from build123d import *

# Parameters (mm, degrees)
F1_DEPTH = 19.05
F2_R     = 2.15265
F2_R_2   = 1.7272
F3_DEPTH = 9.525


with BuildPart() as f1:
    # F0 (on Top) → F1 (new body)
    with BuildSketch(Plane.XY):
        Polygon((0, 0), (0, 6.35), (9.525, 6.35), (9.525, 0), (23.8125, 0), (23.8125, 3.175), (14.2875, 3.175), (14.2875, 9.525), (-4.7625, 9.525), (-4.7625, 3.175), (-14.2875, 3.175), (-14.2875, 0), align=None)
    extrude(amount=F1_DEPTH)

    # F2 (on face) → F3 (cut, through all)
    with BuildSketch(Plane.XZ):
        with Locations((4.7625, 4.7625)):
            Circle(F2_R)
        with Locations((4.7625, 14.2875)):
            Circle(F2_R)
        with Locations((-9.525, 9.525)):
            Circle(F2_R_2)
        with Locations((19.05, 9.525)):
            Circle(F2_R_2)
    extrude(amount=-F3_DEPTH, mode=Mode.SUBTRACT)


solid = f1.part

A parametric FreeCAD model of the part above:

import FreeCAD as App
import Part
import Sketcher
from FreeCAD import Vector
Q = App.Units.Quantity

doc = App.newDocument("Part")
body = doc.addObject("PartDesign::Body", "Body")

sketch1 = body.newObject("Sketcher::SketchObject", "Sketch")
sketch1.AttachmentSupport = (doc.getObject("XY_Plane"), [""])
sketch1.MapMode = "FlatFace"
sketch1.addGeometry(Part.LineSegment(Vector(0, 0, 0), Vector(0, 6.3, 0)), False)
sketch1.addGeometry(Part.LineSegment(Vector(0, 6.3, 0), Vector(9.5, 6.3, 0)), False)
sketch1.addGeometry(Part.LineSegment(Vector(9.5, 6.3, 0), Vector(9.5, 0, 0)), False)
sketch1.addGeometry(Part.LineSegment(Vector(9.5, 0, 0), Vector(23.8, 0, 0)), False)
sketch1.addGeometry(Part.LineSegment(Vector(23.8, 0, 0), Vector(23.8, 3.2, 0)), False)
sketch1.addGeometry(Part.LineSegment(Vector(23.8, 3.2, 0), Vector(14.3, 3.2, 0)), False)
sketch1.addGeometry(Part.LineSegment(Vector(14.3, 3.2, 0), Vector(14.3, 9.5, 0)), False)
sketch1.addGeometry(Part.LineSegment(Vector(14.3, 9.5, 0), Vector(-4.8, 9.5, 0)), False)
sketch1.addGeometry(Part.LineSegment(Vector(-4.8, 9.5, 0), Vector(-4.8, 3.2, 0)), False)
sketch1.addGeometry(Part.LineSegment(Vector(-4.8, 3.2, 0), Vector(-14.3, 3.2, 0)), False)
sketch1.addGeometry(Part.LineSegment(Vector(-14.3, 3.2, 0), Vector(-14.3, 0, 0)), False)
sketch1.addGeometry(Part.LineSegment(Vector(-14.3, 0, 0), Vector(0, 0, 0)), False)
sketch1.addConstraint(Sketcher.Constraint("Coincident", 0, 2, 1, 1))
sketch1.addConstraint(Sketcher.Constraint("Coincident", 1, 2, 2, 1))
sketch1.addConstraint(Sketcher.Constraint("Coincident", 2, 2, 3, 1))
sketch1.addConstraint(Sketcher.Constraint("Coincident", 3, 2, 4, 1))
sketch1.addConstraint(Sketcher.Constraint("Coincident", 4, 2, 5, 1))
sketch1.addConstraint(Sketcher.Constraint("Coincident", 5, 2, 6, 1))
sketch1.addConstraint(Sketcher.Constraint("Coincident", 6, 2, 7, 1))
sketch1.addConstraint(Sketcher.Constraint("Coincident", 7, 2, 8, 1))
sketch1.addConstraint(Sketcher.Constraint("Coincident", 8, 2, 9, 1))
sketch1.addConstraint(Sketcher.Constraint("Coincident", 9, 2, 10, 1))
sketch1.addConstraint(Sketcher.Constraint("Coincident", 10, 2, 11, 1))
sketch1.addConstraint(Sketcher.Constraint("Coincident", 11, 2, 0, 1))
sketch1.addConstraint(Sketcher.Constraint("Vertical", 0))
sketch1.addConstraint(Sketcher.Constraint("Horizontal", 1))
sketch1.addConstraint(Sketcher.Constraint("Vertical", 2))
sketch1.addConstraint(Sketcher.Constraint("Horizontal", 3))
sketch1.addConstraint(Sketcher.Constraint("Vertical", 4))
sketch1.addConstraint(Sketcher.Constraint("Horizontal", 5))
sketch1.addConstraint(Sketcher.Constraint("Vertical", 6))
sketch1.addConstraint(Sketcher.Constraint("Horizontal", 7))
sketch1.addConstraint(Sketcher.Constraint("Vertical", 8))
sketch1.addConstraint(Sketcher.Constraint("Horizontal", 9))
sketch1.addConstraint(Sketcher.Constraint("Vertical", 10))
sketch1.addConstraint(Sketcher.Constraint("Horizontal", 11))
sketch1.addConstraint(Sketcher.Constraint("Coincident", 11, 2, -1, 1))
sketch1.addConstraint(Sketcher.Constraint("Symmetric", 5, 2, 9, 2, -2))
sketch1.addConstraint(Sketcher.Constraint("PointOnObject", 2, 2, -1))
sketch1.addConstraint(Sketcher.Constraint("Equal", 1, 5))
sketch1.addConstraint(Sketcher.Constraint("Equal", 5, 9))
sketch1.addConstraint(Sketcher.Constraint("Equal", 2, 6))
sketch1.addConstraint(Sketcher.Constraint("DistanceX", 7, 2, 7, 1, Q("0.75 in")))
sketch1.addConstraint(Sketcher.Constraint("DistanceY", 0, 1, 0, 2, Q("0.25 in")))
sketch1.addConstraint(Sketcher.Constraint("DistanceX", 1, 1, 1, 2, Q("0.375 in")))
sketch1.addConstraint(Sketcher.Constraint("DistanceY", 4, 1, 4, 2, Q("0.125 in")))
pad1 = body.newObject("PartDesign::Pad", "Pad")
pad1.Profile = sketch1
pad1.Length = Q("0.75 in")

sketch2 = body.newObject("Sketcher::SketchObject", "Sketch001")
sketch2.AttachmentSupport = (doc.getObject("XZ_Plane"), [""])
sketch2.MapMode = "FlatFace"
sketch2.addGeometry(Part.Circle(Vector(4.8, 4.8, 0), Vector(0, 0, 1), 2.2), False)
sketch2.addGeometry(Part.Circle(Vector(4.8, 14.3, 0), Vector(0, 0, 1), 2.2), False)
sketch2.addGeometry(Part.Circle(Vector(-9.5, 9.5, 0), Vector(0, 0, 1), 1.7), False)
sketch2.addGeometry(Part.Circle(Vector(19.1, 9.5, 0), Vector(0, 0, 1), 1.7), False)
sketch2.addConstraint(Sketcher.Constraint("Equal", 0, 1))
sketch2.addConstraint(Sketcher.Constraint("Equal", 2, 3))
sketch2.addConstraint(Sketcher.Constraint("Horizontal", 2, 3, 3, 3))
sketch2.addConstraint(Sketcher.Constraint("Vertical", 0, 3, 1, 3))
sketch2.addConstraint(Sketcher.Constraint("Diameter", 2, Q("0.136 in")))
sketch2.addConstraint(Sketcher.Constraint("Diameter", 0, Q("0.1695 in")))
sketch2.addConstraint(Sketcher.Constraint("DistanceX", -1, 1, 3, 3, Q("0.75 in")))
sketch2.addConstraint(Sketcher.Constraint("DistanceX", -1, 1, 0, 3, Q("0.1875 in")))
sketch2.addConstraint(Sketcher.Constraint("DistanceY", -1, 1, 0, 3, Q("0.1875 in")))
sketch2.addConstraint(Sketcher.Constraint("DistanceY", -1, 1, 1, 3, Q("0.5625 in")))
sketch2.addConstraint(Sketcher.Constraint("DistanceX", 2, 3, -1, 1, Q("0.375 in")))
sketch2.addConstraint(Sketcher.Constraint("DistanceY", -1, 1, 2, 3, Q("0.375 in")))
pocket1 = body.newObject("PartDesign::Pocket", "Pocket")
pocket1.Profile = sketch2
pocket1.Type = "ThroughAll"

doc.recompute()
